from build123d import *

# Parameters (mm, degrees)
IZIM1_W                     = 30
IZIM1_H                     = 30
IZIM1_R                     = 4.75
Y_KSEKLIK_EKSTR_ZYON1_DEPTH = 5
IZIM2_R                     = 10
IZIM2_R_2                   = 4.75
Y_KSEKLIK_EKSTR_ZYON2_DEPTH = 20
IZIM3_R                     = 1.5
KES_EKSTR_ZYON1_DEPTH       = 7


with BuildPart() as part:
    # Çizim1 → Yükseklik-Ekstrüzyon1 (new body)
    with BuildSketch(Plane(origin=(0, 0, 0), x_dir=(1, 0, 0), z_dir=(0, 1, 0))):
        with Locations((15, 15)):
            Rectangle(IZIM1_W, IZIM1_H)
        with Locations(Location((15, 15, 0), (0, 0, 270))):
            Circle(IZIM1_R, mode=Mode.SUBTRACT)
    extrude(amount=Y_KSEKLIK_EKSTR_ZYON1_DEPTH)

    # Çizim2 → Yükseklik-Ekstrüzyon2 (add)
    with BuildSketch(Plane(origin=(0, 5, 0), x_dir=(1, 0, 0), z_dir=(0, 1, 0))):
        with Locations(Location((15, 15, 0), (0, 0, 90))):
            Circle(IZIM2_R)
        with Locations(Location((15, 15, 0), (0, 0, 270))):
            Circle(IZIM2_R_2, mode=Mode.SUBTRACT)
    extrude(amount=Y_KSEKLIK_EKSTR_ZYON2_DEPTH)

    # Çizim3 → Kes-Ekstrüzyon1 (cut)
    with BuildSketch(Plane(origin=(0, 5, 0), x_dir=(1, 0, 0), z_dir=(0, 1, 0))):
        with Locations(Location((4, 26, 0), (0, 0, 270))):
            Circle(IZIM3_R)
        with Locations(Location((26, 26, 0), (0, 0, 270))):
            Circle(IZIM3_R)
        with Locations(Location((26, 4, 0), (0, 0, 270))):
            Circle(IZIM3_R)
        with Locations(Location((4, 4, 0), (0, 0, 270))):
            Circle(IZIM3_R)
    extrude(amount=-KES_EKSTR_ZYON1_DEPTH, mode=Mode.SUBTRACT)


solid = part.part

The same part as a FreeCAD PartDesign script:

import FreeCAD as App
import Part
import Sketcher
Q = App.Units.Quantity

doc = App.newDocument("Part")
body = doc.addObject("PartDesign::Body", "Body")

# Sketch on XZ plane
sketch1 = body.newObject("Sketcher::SketchObject", "Sketch")
sketch1.AttachmentSupport = (doc.getObject("XZ_Plane"), [""])
sketch1.MapMode = "FlatFace"
sketch1.addGeometry(Part.LineSegment(App.Vector(0, -30, 0), App.Vector(0, 0, 0)), False)
sketch1.addGeometry(Part.LineSegment(App.Vector(0, 0, 0), App.Vector(30, 0, 0)), False)
sketch1.addGeometry(Part.LineSegment(App.Vector(30, 0, 0), App.Vector(30, -30, 0)), False)
sketch1.addGeometry(Part.LineSegment(App.Vector(30, -30, 0), App.Vector(0, -30, 0)), False)
sketch1.addGeometry(Part.Circle(App.Vector(15, -15, 0), App.Vector(0, 0, 1), 4.75), False)
sketch1.addConstraint(Sketcher.Constraint("Coincident", 0, 2, 1, 1))
sketch1.addConstraint(Sketcher.Constraint("Coincident", 1, 2, 2, 1))
sketch1.addConstraint(Sketcher.Constraint("Coincident", 2, 2, 3, 1))
sketch1.addConstraint(Sketcher.Constraint("Coincident", 3, 2, 0, 1))
sketch1.addConstraint(Sketcher.Constraint("Vertical", 0))
sketch1.addConstraint(Sketcher.Constraint("Horizontal", 1))
sketch1.addConstraint(Sketcher.Constraint("Vertical", 2))
sketch1.addConstraint(Sketcher.Constraint("Horizontal", 3))
sketch1.addConstraint(Sketcher.Constraint("Coincident", 0, 2, -1, 1))
sketch1.addConstraint(Sketcher.Constraint("Equal", 3, 0))
sketch1.addConstraint(Sketcher.Constraint("Diameter", 4, Q("9.5 mm")))
sketch1.addConstraint(Sketcher.Constraint("DistanceX", 1, 1, 1, 2, Q("30 mm")))
sketch1.addConstraint(Sketcher.Constraint("DistanceX", -1, 1, 4, 3, Q("15 mm")))
sketch1.addConstraint(Sketcher.Constraint("DistanceY", 4, 3, -1, 1, Q("15 mm")))
pad1 = body.newObject("PartDesign::Pad", "Pad")
pad1.Profile = sketch1
pad1.Length = 5
pad1.Reversed = True

# Sketch on XZ plane
sketch2 = body.newObject("Sketcher::SketchObject", "Sketch001")
sketch2.AttachmentSupport = (doc.getObject("XZ_Plane"), [""])
sketch2.MapMode = "FlatFace"
sketch2.AttachmentOffset = App.Placement(App.Vector(0, 0, -5), App.Rotation())
sketch2.addGeometry(Part.Circle(App.Vector(15, -15, 0), App.Vector(0, 0, 1), 10), False)
sketch2.addGeometry(Part.Circle(App.Vector(15, -15, 0), App.Vector(0, 0, 1), 4.75), False)
sketch2.addConstraint(Sketcher.Constraint("Coincident", 1, 3, 0, 3))
sketch2.addConstraint(Sketcher.Constraint("Diameter", 0, Q("20 mm")))
sketch2.addConstraint(Sketcher.Constraint("Diameter", 1, Q("9.5 mm")))
sketch2.addConstraint(Sketcher.Constraint("DistanceX", -1, 1, 0, 3, Q("15 mm")))
sketch2.addConstraint(Sketcher.Constraint("DistanceY", 0, 3, -1, 1, Q("15 mm")))
pad2 = body.newObject("PartDesign::Pad", "Pad001")
pad2.Profile = sketch2
pad2.Length = 20
pad2.Reversed = True

# Sketch on XZ plane
sketch3 = body.newObject("Sketcher::SketchObject", "Sketch002")
sketch3.AttachmentSupport = (doc.getObject("XZ_Plane"), [""])
sketch3.MapMode = "FlatFace"
sketch3.AttachmentOffset = App.Placement(App.Vector(0, 0, -5), App.Rotation())
sketch3.addGeometry(Part.Circle(App.Vector(4, -26, 0), App.Vector(0, 0, 1), 1.5), False)
sketch3.addGeometry(Part.Circle(App.Vector(26, -26, 0), App.Vector(0, 0, 1), 1.5), False)
sketch3.addGeometry(Part.Circle(App.Vector(26, -4, 0), App.Vector(0, 0, 1), 1.5), False)
sketch3.addGeometry(Part.Circle(App.Vector(4, -4, 0), App.Vector(0, 0, 1), 1.5), False)
sketch3.addConstraint(Sketcher.Constraint("Equal", 0, 1))
sketch3.addConstraint(Sketcher.Constraint("Equal", 1, 2))
sketch3.addConstraint(Sketcher.Constraint("Equal", 2, 3))
sketch3.addConstraint(Sketcher.Constraint("Horizontal", 0, 3, 1, 3))
sketch3.addConstraint(Sketcher.Constraint("Horizontal", 2, 3, 3, 3))
sketch3.addConstraint(Sketcher.Constraint("Vertical", 1, 3, 2, 3))
sketch3.addConstraint(Sketcher.Constraint("Vertical", 0, 3, 3, 3))
sketch3.addConstraint(Sketcher.Constraint("Diameter", 0, Q("3 mm")))
sketch3.addConstraint(Sketcher.Constraint("DistanceX", -1, 1, 0, 3, Q("4 mm")))
sketch3.addConstraint(Sketcher.Constraint("DistanceY", 0, 3, -1, 1, Q("26 mm")))
sketch3.addConstraint(Sketcher.Constraint("DistanceX", -1, 1, 1, 3, Q("26 mm")))
sketch3.addConstraint(Sketcher.Constraint("DistanceY", 2, 3, -1, 1, Q("4 mm")))
pocket1 = body.newObject("PartDesign::Pocket", "Pocket")
pocket1.Profile = sketch3
pocket1.Length = 7
pocket1.Reversed = True

doc.recompute()
